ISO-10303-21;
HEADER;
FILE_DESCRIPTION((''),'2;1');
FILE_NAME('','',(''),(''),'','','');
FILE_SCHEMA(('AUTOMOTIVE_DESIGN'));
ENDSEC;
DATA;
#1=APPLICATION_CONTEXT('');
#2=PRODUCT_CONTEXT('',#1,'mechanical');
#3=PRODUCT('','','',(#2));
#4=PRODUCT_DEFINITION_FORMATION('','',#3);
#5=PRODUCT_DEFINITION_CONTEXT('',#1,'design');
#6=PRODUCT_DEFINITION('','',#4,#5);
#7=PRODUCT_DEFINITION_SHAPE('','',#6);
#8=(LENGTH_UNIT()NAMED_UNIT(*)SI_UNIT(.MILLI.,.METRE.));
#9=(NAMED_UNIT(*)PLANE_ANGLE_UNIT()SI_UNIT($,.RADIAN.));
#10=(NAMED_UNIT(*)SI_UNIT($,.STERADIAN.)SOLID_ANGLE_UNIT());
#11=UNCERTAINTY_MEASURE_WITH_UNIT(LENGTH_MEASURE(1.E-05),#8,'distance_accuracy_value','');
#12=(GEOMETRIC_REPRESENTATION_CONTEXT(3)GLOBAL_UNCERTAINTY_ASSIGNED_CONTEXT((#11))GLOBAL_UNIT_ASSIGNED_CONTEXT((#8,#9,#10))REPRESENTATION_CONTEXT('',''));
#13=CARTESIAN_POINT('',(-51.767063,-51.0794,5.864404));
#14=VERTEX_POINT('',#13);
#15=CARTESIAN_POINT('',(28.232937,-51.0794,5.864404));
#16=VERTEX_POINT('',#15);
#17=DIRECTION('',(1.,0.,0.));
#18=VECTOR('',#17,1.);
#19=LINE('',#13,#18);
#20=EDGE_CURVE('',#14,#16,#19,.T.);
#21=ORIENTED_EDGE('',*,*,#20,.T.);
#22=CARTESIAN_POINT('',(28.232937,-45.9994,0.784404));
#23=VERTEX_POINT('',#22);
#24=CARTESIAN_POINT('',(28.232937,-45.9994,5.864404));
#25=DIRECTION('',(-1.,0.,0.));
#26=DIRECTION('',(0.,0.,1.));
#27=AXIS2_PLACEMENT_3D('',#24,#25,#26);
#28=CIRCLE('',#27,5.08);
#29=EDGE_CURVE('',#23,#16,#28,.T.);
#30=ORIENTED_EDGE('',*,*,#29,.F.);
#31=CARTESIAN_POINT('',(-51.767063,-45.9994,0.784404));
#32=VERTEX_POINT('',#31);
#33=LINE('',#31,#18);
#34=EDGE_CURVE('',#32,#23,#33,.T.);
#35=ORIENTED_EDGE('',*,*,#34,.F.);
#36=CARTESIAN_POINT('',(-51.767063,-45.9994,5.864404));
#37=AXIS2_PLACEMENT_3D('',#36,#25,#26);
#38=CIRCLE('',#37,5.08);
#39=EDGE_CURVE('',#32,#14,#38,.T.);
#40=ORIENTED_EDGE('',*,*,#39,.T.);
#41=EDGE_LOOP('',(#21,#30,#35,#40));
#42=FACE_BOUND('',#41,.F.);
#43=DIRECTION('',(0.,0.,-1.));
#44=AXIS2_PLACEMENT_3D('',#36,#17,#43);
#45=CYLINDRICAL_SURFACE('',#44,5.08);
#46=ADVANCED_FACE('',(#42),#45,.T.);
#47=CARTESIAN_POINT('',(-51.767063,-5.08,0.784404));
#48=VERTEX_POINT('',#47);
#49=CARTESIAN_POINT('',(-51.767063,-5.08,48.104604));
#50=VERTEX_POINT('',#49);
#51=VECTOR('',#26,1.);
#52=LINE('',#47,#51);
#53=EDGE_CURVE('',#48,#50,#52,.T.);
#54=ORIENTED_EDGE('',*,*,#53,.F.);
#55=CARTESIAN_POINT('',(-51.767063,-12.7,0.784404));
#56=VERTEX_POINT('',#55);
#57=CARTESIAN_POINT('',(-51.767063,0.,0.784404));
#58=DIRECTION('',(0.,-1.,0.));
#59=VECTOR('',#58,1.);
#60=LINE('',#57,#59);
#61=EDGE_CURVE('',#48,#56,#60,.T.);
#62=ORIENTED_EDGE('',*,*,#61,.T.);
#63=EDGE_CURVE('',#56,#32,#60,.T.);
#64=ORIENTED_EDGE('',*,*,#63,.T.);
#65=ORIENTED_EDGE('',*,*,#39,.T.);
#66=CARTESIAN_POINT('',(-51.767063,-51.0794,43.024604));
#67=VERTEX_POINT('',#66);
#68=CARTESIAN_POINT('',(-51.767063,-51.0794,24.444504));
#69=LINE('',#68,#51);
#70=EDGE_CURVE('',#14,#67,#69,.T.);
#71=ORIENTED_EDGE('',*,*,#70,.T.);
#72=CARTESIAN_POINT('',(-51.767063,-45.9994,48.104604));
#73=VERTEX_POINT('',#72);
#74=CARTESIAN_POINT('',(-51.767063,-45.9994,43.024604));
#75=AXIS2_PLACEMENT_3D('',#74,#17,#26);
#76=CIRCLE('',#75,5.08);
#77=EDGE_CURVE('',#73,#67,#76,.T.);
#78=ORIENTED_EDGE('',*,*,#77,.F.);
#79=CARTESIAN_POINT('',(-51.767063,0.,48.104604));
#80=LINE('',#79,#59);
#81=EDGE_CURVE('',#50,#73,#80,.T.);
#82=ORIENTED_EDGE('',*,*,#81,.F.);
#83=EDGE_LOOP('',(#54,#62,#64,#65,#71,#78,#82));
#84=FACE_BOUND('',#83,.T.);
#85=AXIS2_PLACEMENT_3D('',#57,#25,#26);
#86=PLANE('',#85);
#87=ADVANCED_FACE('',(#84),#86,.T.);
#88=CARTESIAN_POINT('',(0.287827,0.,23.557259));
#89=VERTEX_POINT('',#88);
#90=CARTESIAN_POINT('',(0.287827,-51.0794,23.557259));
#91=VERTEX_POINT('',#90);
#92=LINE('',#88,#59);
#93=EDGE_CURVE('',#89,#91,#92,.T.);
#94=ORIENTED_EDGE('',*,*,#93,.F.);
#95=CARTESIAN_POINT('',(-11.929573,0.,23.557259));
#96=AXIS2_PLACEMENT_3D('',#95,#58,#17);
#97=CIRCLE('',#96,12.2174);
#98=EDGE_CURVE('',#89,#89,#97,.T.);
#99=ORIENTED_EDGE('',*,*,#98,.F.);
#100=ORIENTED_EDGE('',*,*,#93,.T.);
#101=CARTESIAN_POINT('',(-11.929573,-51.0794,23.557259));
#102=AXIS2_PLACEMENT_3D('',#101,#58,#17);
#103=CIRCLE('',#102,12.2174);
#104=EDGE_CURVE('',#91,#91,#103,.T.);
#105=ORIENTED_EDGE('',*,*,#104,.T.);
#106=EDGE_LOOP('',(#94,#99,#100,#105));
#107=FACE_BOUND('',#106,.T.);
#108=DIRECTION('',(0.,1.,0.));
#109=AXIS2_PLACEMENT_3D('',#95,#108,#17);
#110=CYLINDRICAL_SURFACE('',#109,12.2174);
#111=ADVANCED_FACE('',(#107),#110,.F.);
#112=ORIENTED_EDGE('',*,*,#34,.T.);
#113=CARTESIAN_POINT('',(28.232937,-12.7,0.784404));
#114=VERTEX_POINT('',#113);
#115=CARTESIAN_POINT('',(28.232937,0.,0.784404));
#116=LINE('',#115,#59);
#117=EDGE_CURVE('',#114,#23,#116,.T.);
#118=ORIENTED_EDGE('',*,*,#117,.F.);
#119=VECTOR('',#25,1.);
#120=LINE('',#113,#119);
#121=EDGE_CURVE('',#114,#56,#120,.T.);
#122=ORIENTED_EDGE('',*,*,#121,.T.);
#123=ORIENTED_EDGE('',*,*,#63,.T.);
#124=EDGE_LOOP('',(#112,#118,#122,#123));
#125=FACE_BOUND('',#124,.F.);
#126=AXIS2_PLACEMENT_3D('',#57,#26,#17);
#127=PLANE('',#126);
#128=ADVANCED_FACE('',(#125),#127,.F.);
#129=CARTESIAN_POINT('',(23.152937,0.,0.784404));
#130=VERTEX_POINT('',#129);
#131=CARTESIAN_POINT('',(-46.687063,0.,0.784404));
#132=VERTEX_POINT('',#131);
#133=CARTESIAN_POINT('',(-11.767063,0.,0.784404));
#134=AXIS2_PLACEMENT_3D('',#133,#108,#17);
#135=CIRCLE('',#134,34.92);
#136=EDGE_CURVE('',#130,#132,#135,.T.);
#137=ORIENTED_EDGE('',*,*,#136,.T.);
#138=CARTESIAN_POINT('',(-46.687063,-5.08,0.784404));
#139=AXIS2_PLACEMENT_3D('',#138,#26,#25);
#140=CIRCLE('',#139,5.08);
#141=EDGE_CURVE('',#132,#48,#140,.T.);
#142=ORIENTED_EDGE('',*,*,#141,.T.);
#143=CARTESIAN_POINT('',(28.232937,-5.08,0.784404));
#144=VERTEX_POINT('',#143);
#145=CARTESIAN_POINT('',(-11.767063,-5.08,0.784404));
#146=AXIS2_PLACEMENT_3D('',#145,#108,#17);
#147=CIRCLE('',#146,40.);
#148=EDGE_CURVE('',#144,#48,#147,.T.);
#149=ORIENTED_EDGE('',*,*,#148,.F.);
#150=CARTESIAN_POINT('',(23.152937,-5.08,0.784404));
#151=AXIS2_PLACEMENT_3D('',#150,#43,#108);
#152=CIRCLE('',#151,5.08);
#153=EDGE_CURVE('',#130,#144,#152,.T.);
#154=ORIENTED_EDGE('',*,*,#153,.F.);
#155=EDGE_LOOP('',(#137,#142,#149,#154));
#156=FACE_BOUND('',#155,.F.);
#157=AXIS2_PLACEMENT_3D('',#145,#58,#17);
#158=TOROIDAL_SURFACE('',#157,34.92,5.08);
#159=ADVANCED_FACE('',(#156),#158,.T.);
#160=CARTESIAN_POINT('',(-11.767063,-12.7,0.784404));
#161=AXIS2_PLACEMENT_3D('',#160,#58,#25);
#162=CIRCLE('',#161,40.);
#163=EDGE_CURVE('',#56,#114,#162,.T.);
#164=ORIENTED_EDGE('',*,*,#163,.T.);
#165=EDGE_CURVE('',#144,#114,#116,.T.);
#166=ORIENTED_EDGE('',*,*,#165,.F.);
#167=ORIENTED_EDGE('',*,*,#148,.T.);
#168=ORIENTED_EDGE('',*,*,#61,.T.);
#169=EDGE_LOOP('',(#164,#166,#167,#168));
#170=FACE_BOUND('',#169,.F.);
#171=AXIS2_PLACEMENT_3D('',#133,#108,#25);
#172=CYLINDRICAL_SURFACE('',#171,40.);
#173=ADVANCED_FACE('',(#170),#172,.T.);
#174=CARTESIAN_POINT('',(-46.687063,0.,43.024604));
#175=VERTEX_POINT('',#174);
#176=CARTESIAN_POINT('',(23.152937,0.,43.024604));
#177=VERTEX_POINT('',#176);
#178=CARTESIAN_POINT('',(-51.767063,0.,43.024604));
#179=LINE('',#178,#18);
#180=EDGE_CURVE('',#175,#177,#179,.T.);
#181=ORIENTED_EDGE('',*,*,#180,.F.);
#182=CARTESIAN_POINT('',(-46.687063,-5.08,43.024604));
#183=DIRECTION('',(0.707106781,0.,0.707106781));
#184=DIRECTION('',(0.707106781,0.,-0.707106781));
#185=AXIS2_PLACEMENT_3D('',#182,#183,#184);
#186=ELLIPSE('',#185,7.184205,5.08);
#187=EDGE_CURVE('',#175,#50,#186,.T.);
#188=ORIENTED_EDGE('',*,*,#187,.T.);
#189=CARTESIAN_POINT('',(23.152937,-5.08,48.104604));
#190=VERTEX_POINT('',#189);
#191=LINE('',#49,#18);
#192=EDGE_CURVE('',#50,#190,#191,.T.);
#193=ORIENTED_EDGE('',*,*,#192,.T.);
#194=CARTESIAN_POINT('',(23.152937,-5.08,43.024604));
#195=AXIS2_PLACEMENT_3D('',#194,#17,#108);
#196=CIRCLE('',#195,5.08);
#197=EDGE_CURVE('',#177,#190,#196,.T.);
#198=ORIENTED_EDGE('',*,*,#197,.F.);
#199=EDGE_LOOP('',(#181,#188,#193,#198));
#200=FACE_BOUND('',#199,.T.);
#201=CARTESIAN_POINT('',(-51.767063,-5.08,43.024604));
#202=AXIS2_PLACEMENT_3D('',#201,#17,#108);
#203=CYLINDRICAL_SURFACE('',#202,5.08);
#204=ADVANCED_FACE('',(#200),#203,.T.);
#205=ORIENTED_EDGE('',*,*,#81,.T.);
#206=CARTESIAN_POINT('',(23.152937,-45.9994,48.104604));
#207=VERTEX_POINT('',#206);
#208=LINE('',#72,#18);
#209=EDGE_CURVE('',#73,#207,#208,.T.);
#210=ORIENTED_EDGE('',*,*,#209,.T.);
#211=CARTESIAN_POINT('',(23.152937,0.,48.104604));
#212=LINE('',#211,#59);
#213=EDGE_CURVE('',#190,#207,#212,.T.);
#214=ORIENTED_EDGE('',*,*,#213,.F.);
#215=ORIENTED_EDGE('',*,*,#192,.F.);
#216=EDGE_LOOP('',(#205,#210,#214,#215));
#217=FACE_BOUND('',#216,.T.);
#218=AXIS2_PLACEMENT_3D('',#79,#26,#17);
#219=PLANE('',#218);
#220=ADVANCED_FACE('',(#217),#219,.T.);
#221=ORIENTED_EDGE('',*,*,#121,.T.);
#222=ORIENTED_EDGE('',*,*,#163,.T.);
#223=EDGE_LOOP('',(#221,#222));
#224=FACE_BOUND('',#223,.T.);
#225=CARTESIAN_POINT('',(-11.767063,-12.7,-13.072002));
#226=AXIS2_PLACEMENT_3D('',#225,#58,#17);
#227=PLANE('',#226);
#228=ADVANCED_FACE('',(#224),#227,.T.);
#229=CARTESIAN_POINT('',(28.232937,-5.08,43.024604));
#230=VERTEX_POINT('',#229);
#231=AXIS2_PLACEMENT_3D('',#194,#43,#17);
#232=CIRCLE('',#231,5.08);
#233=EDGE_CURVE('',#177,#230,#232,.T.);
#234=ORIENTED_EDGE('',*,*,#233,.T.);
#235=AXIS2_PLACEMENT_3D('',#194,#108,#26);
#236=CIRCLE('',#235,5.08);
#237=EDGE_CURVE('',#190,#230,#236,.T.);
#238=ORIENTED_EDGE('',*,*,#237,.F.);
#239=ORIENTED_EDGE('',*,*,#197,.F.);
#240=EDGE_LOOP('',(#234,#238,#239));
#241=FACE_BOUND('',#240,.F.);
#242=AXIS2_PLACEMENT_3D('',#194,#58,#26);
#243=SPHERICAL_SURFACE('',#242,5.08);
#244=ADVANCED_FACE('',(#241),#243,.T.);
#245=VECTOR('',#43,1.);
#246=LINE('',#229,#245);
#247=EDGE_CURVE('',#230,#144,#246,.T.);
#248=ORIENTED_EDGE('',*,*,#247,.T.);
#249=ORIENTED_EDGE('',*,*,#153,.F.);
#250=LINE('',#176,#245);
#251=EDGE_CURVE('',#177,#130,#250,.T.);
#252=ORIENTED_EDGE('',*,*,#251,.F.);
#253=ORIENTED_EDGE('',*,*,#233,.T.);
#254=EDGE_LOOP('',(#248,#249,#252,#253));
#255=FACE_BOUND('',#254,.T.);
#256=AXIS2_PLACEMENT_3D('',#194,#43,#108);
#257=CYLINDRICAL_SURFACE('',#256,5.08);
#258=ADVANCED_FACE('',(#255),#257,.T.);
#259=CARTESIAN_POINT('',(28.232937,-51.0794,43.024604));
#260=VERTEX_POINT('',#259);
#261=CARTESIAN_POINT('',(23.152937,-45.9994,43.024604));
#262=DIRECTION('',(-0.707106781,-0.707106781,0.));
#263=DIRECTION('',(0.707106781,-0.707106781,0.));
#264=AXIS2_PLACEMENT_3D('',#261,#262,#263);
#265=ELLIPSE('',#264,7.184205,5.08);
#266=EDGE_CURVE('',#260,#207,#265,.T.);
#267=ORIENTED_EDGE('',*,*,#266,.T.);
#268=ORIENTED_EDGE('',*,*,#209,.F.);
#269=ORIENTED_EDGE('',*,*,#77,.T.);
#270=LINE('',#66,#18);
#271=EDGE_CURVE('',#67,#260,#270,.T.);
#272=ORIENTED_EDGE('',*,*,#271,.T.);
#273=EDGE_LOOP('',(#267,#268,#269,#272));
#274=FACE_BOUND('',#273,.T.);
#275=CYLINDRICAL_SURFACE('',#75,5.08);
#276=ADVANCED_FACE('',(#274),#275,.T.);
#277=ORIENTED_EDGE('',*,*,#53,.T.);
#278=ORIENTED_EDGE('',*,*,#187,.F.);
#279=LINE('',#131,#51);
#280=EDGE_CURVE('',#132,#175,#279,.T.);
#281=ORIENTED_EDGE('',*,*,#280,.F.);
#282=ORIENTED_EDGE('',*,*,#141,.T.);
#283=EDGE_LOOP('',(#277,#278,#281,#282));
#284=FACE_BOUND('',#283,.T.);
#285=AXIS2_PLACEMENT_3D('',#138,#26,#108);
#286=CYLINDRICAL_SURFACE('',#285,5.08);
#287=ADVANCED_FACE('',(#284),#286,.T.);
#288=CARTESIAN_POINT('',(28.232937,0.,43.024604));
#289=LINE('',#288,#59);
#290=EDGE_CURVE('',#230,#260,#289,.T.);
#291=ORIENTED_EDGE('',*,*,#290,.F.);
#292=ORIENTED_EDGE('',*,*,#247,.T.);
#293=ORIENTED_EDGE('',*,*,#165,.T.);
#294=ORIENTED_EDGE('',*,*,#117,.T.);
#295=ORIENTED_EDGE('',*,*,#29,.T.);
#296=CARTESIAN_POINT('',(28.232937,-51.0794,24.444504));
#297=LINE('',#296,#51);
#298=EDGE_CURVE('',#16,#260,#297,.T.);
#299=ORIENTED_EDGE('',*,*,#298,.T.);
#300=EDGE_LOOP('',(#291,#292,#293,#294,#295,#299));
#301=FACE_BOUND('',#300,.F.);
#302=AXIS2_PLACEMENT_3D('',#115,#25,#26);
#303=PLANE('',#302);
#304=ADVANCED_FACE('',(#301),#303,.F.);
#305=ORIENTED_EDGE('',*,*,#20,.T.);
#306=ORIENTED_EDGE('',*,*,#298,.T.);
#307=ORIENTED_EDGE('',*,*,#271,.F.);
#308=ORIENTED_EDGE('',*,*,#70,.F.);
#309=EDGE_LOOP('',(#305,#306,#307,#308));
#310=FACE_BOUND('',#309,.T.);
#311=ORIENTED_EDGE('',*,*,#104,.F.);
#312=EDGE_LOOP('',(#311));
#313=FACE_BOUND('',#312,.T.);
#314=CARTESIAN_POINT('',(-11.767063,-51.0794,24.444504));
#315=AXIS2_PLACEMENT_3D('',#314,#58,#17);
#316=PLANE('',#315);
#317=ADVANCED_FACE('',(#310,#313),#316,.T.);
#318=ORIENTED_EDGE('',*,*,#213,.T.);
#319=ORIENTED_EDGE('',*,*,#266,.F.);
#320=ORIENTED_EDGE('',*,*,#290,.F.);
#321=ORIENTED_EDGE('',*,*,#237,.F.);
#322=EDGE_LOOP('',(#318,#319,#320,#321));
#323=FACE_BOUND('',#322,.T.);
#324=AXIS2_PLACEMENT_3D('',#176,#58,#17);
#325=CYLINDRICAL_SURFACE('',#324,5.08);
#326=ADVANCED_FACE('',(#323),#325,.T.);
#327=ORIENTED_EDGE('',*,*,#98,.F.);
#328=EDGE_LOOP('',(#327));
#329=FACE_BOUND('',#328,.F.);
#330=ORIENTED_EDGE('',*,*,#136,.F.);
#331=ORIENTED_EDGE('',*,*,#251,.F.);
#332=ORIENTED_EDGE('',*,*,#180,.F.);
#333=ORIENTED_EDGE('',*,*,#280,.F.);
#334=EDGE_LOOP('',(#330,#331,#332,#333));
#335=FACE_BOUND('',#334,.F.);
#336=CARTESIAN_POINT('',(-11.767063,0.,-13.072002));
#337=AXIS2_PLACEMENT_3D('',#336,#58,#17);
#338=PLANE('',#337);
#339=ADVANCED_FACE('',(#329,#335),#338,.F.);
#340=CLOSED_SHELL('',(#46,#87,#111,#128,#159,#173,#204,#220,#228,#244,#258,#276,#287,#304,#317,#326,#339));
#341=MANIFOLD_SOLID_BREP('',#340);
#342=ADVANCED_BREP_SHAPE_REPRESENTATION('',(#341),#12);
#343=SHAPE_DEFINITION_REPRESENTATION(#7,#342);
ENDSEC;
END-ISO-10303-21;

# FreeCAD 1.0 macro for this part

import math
import FreeCAD as App
import Part
import Sketcher
from FreeCAD import Vector
Q = App.Units.Quantity


def edges_at(feature, points):
    """Names of the edges that pass closest to the given points."""
    edges = feature.Shape.Edges
    near = lambda p: min(range(len(edges)), key=lambda i: edges[i].distToShape(Part.Vertex(*p))[0])
    return sorted({f"Edge{near(p) + 1}" for p in points})

doc = App.newDocument("Part")
body = doc.addObject("PartDesign::Body", "Body")

# Sketch on XZ plane
sketch1 = body.newObject("Sketcher::SketchObject", "Sketch")
sketch1.AttachmentSupport = (doc.getObject("XZ_Plane"), [""])
sketch1.MapMode = "FlatFace"
sketch1.addGeometry([
    Part.LineSegment(Vector(-52, 48, 0), Vector(-52, 1, 0)),  # 0
    Part.LineSegment(Vector(-52, 1, 0), Vector(28, 1, 0)),  # 1
    Part.LineSegment(Vector(28, 1, 0), Vector(28, 48, 0)),  # 2
    Part.LineSegment(Vector(28, 48, 0), Vector(-52, 48, 0)),  # 3
    Part.Circle(Vector(-12, 24, 0), Vector(0, 0, 1), 12),  # 4
], False)
sketch1.addConstraint([
    Sketcher.Constraint("Coincident", 0, 2, 1, 1),
    Sketcher.Constraint("Coincident", 1, 2, 2, 1),
    Sketcher.Constraint("Coincident", 2, 2, 3, 1),
    Sketcher.Constraint("Coincident", 3, 2, 0, 1),
    Sketcher.Constraint("Vertical", 0),
    Sketcher.Constraint("Horizontal", 1),
    Sketcher.Constraint("Vertical", 2),
    Sketcher.Constraint("Horizontal", 3),
    Sketcher.Constraint("Diameter", 4, Q("0.962 in")),
    Sketcher.Constraint("DistanceY", 0, 2, 0, 1, Q("1.863 in")),
    Sketcher.Constraint("DistanceX", 1, 1, 1, 2, Q("80 mm")),
    Sketcher.Constraint("DistanceY", -1, 1, 4, 3, Q("23.557259 mm")),
    Sketcher.Constraint("DistanceX", 0, 2, 4, 3, Q("39.83749 mm")),
    Sketcher.Constraint("DistanceX", 4, 3, -1, 1, Q("11.929573 mm")),
    Sketcher.Constraint("DistanceY", -1, 1, 0, 2, Q("0.784404 mm")),
])
pad1 = body.newObject("PartDesign::Pad", "Pad")
pad1.Profile = sketch1
pad1.Length = Q("2.011 in")

# Sketch on XZ plane
sketch2 = body.newObject("Sketcher::SketchObject", "Sketch001")
sketch2.AttachmentSupport = (doc.getObject("XZ_Plane"), [""])
sketch2.MapMode = "FlatFace"
sketch2.addGeometry([
    Part.LineSegment(Vector(28, 1, 0), Vector(-52, 1, 0)),
    Part.ArcOfCircle(Part.Circle(Vector(-12, 1, 0), Vector(0, 0, 1), 40), math.radians(180), math.radians(360)),
], False)
sketch2.addConstraint([
    Sketcher.Constraint("Coincident", 0, 1, 1, 2),
    Sketcher.Constraint("Coincident", 1, 1, 0, 2),
    Sketcher.Constraint("Horizontal", 0),
    Sketcher.Constraint("Horizontal", 1, 3, 0, 1),
    Sketcher.Constraint("Radius", 1, Q("40 mm")),
    Sketcher.Constraint("DistanceX", 1, 3, -1, 1, Q("11.767063 mm")),
    Sketcher.Constraint("DistanceY", -1, 1, 1, 3, Q("0.784404 mm")),
])
pad2 = body.newObject("PartDesign::Pad", "Pad001")
pad2.Profile = sketch2
pad2.Length = Q("0.5 in")
doc.recompute()

fillet = body.newObject("PartDesign::Fillet", "Fillet")
fillet.Base = (pad2, edges_at(pad2, [(28.233, -25.54, 48.105), (-11.767, -51.079, 0.784), (-11.767, -51.079, 48.105)]))
fillet.Radius = Q("0.2 in")
doc.recompute()

fillet2 = body.newObject("PartDesign::Fillet", "Fillet001")
fillet2.Base = (fillet, edges_at(fillet, [(-14.307, 0, 48.105)]))
fillet2.Radius = Q("0.2 in")

doc.recompute()
